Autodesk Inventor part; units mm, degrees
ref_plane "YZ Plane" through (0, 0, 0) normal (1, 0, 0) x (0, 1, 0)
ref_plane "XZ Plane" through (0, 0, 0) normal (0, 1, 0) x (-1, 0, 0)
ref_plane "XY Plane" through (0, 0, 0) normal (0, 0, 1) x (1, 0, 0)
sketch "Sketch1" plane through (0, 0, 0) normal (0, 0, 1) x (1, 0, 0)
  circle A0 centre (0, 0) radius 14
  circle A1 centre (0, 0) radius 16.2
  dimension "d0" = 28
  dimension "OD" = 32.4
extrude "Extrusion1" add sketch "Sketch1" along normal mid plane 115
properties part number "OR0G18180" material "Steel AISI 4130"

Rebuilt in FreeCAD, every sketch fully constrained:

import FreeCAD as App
import Part
import Sketcher

V = App.Vector

doc = App.newDocument("Part")
body = doc.addObject("PartDesign::Body", "Body")

# Sketch on XY plane
sketch1 = body.newObject("Sketcher::SketchObject", "Sketch")
sketch1.AttachmentSupport = (doc.getObject("XY_Plane"), [""])
sketch1.MapMode = "FlatFace"
sketch1.addGeometry([
    Part.Circle(V(0, 0, 0), V(0, 0, 1), 16),
    Part.Circle(V(0, 0, 0), V(0, 0, 1), 14),
], False)
sketch1.addConstraint([
    Sketcher.Constraint("Coincident", 0, 3, -1, 1),
    Sketcher.Constraint("Coincident", 1, 3, -1, 1),
    Sketcher.Constraint("Diameter", 1, 28.0),
    Sketcher.Constraint("Diameter", 0, 32.4),
])
pad1 = body.newObject("PartDesign::Pad", "Pad")
pad1.Profile = sketch1
pad1.Length = 115
pad1.Midplane = True

doc.recompute()
